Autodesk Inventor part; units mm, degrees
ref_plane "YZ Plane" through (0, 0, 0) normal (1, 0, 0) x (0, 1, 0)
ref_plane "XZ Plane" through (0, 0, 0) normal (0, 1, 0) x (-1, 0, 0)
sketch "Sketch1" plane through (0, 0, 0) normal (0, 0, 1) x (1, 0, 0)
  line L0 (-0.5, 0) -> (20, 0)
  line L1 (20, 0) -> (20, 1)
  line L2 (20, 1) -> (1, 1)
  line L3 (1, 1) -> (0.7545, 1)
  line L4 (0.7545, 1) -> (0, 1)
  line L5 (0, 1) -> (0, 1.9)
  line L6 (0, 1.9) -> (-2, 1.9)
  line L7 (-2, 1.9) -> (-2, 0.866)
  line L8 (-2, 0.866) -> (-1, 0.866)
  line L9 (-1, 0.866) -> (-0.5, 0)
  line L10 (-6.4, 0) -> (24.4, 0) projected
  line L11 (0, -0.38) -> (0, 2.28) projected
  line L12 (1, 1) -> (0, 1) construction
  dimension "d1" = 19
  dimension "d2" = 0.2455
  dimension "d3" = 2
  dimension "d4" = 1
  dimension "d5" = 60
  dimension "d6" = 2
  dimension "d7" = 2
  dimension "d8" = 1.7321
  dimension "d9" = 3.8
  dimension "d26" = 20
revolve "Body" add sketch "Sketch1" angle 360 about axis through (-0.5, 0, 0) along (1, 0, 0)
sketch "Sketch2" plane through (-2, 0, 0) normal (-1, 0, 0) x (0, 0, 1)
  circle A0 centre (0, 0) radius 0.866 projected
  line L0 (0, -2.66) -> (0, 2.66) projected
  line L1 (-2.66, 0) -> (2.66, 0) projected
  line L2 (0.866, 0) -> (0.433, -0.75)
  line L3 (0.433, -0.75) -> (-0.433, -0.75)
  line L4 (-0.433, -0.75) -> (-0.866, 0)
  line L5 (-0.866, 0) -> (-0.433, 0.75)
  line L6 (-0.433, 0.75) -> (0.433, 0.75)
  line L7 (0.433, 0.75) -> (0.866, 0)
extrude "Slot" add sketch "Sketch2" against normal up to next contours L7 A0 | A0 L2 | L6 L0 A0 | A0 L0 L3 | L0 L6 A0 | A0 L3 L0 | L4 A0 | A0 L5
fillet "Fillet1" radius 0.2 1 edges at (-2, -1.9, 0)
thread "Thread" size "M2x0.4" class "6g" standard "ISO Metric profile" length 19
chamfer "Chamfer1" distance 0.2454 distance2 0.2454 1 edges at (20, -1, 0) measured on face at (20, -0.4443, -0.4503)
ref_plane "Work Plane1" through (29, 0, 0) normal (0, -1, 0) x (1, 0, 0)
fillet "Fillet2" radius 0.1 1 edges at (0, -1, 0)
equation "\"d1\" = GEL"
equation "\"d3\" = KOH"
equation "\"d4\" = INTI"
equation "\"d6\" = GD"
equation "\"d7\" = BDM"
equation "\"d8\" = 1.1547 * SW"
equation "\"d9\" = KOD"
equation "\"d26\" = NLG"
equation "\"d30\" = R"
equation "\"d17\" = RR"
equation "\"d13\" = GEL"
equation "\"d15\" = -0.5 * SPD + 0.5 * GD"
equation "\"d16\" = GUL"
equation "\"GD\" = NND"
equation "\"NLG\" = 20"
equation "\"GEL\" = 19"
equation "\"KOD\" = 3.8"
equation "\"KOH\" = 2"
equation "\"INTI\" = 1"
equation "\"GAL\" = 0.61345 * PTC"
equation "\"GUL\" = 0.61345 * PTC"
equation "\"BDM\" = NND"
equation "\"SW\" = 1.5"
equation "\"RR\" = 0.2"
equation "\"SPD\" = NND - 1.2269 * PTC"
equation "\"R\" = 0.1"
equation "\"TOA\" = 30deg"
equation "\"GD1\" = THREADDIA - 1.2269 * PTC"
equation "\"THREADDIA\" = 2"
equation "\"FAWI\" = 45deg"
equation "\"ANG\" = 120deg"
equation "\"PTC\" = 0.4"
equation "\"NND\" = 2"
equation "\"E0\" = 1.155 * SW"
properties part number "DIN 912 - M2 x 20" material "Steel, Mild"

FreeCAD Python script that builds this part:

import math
import FreeCAD as App
import Part
import Sketcher
Q = App.Units.Quantity


def edges_at(feature, points):
    """Names of the edges that pass closest to the given points."""
    edges = feature.Shape.Edges
    near = lambda p: min(range(len(edges)), key=lambda i: edges[i].distToShape(Part.Vertex(*p))[0])
    return sorted({f"Edge{near(p) + 1}" for p in points})


def add_polygon(sketch, points):
    """Adds a closed chain of lines whose ends are joined by coincident constraints."""
    first, n = sketch.GeometryCount, len(points)
    for a, b in zip(points, points[1:] + points[:1]):
        sketch.addGeometry(Part.LineSegment(App.Vector(*a, 0), App.Vector(*b, 0)), False)
    for i in range(n):
        sketch.addConstraint(Sketcher.Constraint("Coincident", first + i, 2, first + (i + 1) % n, 1))

doc = App.newDocument("Part")
body = doc.addObject("PartDesign::Body", "Body")

sketch1 = doc.addObject("Sketcher::SketchObject", "Sketch")
body.addObject(sketch1)
sketch1.AttachmentSupport = (doc.XY_Plane, [""])
sketch1.MapMode = "FlatFace"
add_polygon(sketch1, [(-1, 0.866), (-0.5, 0), (20, 0), (20, 1), (0, 1), (0, 1.9), (-2, 1.9), (-2, 0.866)])
sketch1.addConstraint(Sketcher.Constraint("Horizontal", 1))
sketch1.addConstraint(Sketcher.Constraint("Vertical", 2))
sketch1.addConstraint(Sketcher.Constraint("Horizontal", 3))
sketch1.addConstraint(Sketcher.Constraint("Vertical", 4))
sketch1.addConstraint(Sketcher.Constraint("Horizontal", 5))
sketch1.addConstraint(Sketcher.Constraint("Vertical", 6))
sketch1.addConstraint(Sketcher.Constraint("Horizontal", 7))
sketch1.addConstraint(Sketcher.Constraint("PointOnObject", 0, 2, -1))
sketch1.addConstraint(Sketcher.Constraint("PointOnObject", 3, 2, -2))
sketch1.addConstraint(Sketcher.Constraint("Equal", 7, 2))
sketch1.addConstraint(Sketcher.Constraint("DistanceX", 3, 2, 3, 1, 20.0))
sketch1.addConstraint(Sketcher.Constraint("DistanceX", 5, 2, 5, 1, 2.0))
sketch1.addConstraint(Sketcher.Constraint("DistanceX", 7, 1, 7, 2, 1.0))
sketch1.addConstraint(Sketcher.Constraint("Distance", 0, 1.0))
sketch1.addConstraint(Sketcher.Constraint("Angle", 0, Q("-59.9993 deg")))
sketch1.addConstraint(Sketcher.Constraint("DistanceY", 4, 1, 4, 2, 0.9))
revolution = doc.addObject("PartDesign::Revolution", "Revolution")
body.addObject(revolution)
revolution.Profile = sketch1
revolution.ReferenceAxis = (sketch1, ["H_Axis"])
revolution.Angle = 360

sketch2 = doc.addObject("Sketcher::SketchObject", "Sketch001")
body.addObject(sketch2)
sketch2.AttachmentSupport = (doc.YZ_Plane, [""])
sketch2.MapMode = "FlatFace"
sketch2.AttachmentOffset = App.Placement(App.Vector(0, 0, -2), App.Rotation())
sketch2.addGeometry(Part.LineSegment(App.Vector(0.75, 0.433, 0), App.Vector(0, 0.866, 0)), False)
sketch2.addGeometry(Part.ArcOfCircle(Part.Circle(App.Vector(0, 0, 0), App.Vector(0, 0, 1), 0.866), math.radians(29.999272), math.radians(90)), False)
sketch2.addGeometry(Part.ArcOfCircle(Part.Circle(App.Vector(0, 0, 0), App.Vector(0, 0, 1), 0.866), math.radians(90), math.radians(150.000728)), False)
sketch2.addGeometry(Part.LineSegment(App.Vector(0, 0.866, 0), App.Vector(-0.75, 0.433, 0)), False)
sketch2.addGeometry(Part.ArcOfCircle(Part.Circle(App.Vector(0, 0, 0), App.Vector(0, 0, 1), 0.866), math.radians(-29.999272), math.radians(29.999272)), False)
sketch2.addGeometry(Part.LineSegment(App.Vector(0.75, 0.433, 0), App.Vector(0.75, -0.433, 0)), False)
sketch2.addGeometry(Part.LineSegment(App.Vector(-0.75, 0.433, 0), App.Vector(-0.75, -0.433, 0)), False)
sketch2.addGeometry(Part.ArcOfCircle(Part.Circle(App.Vector(0, 0, 0), App.Vector(0, 0, 1), 0.866), math.radians(150.000728), math.radians(209.999272)), False)
sketch2.addGeometry(Part.LineSegment(App.Vector(-0.75, -0.433, 0), App.Vector(0, -0.866, 0)), False)
sketch2.addGeometry(Part.ArcOfCircle(Part.Circle(App.Vector(0, 0, 0), App.Vector(0, 0, 1), 0.866), math.radians(-150.000728), math.radians(-90)), False)
sketch2.addGeometry(Part.ArcOfCircle(Part.Circle(App.Vector(0, 0, 0), App.Vector(0, 0, 1), 0.866), math.radians(-90), math.radians(-29.999272)), False)
sketch2.addGeometry(Part.LineSegment(App.Vector(0, -0.866, 0), App.Vector(0.75, -0.433, 0)), False)
sketch2.addConstraint(Sketcher.Constraint("Coincident", 0, 1, 1, 1))
sketch2.addConstraint(Sketcher.Constraint("Coincident", 1, 2, 0, 2))
sketch2.addConstraint(Sketcher.Constraint("Coincident", 2, 1, 3, 1))
sketch2.addConstraint(Sketcher.Constraint("Coincident", 3, 2, 2, 2))
sketch2.addConstraint(Sketcher.Constraint("Coincident", 4, 1, 5, 2))
sketch2.addConstraint(Sketcher.Constraint("Coincident", 5, 1, 4, 2))
sketch2.addConstraint(Sketcher.Constraint("Coincident", 6, 1, 7, 1))
sketch2.addConstraint(Sketcher.Constraint("Coincident", 7, 2, 6, 2))
sketch2.addConstraint(Sketcher.Constraint("Coincident", 8, 1, 9, 1))
sketch2.addConstraint(Sketcher.Constraint("Coincident", 9, 2, 8, 2))
sketch2.addConstraint(Sketcher.Constraint("Coincident", 10, 1, 11, 1))
sketch2.addConstraint(Sketcher.Constraint("Coincident", 11, 2, 10, 2))
sketch2.addConstraint(Sketcher.Constraint("Vertical", 5))
sketch2.addConstraint(Sketcher.Constraint("Vertical", 6))
sketch2.addConstraint(Sketcher.Constraint("Coincident", 1, 3, -1, 1))
sketch2.addConstraint(Sketcher.Constraint("Coincident", 2, 3, -1, 1))
sketch2.addConstraint(Sketcher.Constraint("Coincident", 4, 3, -1, 1))
sketch2.addConstraint(Sketcher.Constraint("Coincident", 7, 3, -1, 1))
sketch2.addConstraint(Sketcher.Constraint("Coincident", 9, 3, -1, 1))
sketch2.addConstraint(Sketcher.Constraint("Coincident", 10, 3, -1, 1))
sketch2.addConstraint(Sketcher.Constraint("Coincident", 2, 1, 1, 2))
sketch2.addConstraint(Sketcher.Constraint("Coincident", 5, 1, 0, 1))
sketch2.addConstraint(Sketcher.Constraint("Coincident", 6, 1, 3, 2))
sketch2.addConstraint(Sketcher.Constraint("Coincident", 8, 1, 7, 2))
sketch2.addConstraint(Sketcher.Constraint("Coincident", 10, 1, 9, 2))
sketch2.addConstraint(Sketcher.Constraint("PointOnObject", 1, 2, -2))
sketch2.addConstraint(Sketcher.Constraint("PointOnObject", 9, 2, -2))
sketch2.addConstraint(Sketcher.Constraint("Parallel", 0, 8))
sketch2.addConstraint(Sketcher.Constraint("Parallel", 3, 11))
sketch2.addConstraint(Sketcher.Constraint("Angle", 0, Q("150.0007 deg")))
sketch2.addConstraint(Sketcher.Constraint("Radius", 1, 0.866))
pad1 = doc.addObject("PartDesign::Pad", "Pad")
body.addObject(pad1)
pad1.Profile = sketch2
pad1.Type = "UpToFirst"
doc.recompute()

fillet = doc.addObject("PartDesign::Fillet", "Fillet")
body.addObject(fillet)
fillet.Base = (pad1, edges_at(pad1, [(-2, -1.9, 0)]))
fillet.Radius = 0.2
doc.recompute()

chamfer = doc.addObject("PartDesign::Chamfer", "Chamfer")
body.addObject(chamfer)
chamfer.Base = (fillet, edges_at(fillet, [(20, -1, 0)]))
chamfer.ChamferType = "Two distances"
chamfer.Size = 0.2454
chamfer.Size2 = 0.2454
doc.recompute()

fillet2 = doc.addObject("PartDesign::Fillet", "Fillet001")
body.addObject(fillet2)
fillet2.Base = (chamfer, edges_at(chamfer, [(0, -1, 0)]))
fillet2.Radius = 0.1

doc.recompute()
